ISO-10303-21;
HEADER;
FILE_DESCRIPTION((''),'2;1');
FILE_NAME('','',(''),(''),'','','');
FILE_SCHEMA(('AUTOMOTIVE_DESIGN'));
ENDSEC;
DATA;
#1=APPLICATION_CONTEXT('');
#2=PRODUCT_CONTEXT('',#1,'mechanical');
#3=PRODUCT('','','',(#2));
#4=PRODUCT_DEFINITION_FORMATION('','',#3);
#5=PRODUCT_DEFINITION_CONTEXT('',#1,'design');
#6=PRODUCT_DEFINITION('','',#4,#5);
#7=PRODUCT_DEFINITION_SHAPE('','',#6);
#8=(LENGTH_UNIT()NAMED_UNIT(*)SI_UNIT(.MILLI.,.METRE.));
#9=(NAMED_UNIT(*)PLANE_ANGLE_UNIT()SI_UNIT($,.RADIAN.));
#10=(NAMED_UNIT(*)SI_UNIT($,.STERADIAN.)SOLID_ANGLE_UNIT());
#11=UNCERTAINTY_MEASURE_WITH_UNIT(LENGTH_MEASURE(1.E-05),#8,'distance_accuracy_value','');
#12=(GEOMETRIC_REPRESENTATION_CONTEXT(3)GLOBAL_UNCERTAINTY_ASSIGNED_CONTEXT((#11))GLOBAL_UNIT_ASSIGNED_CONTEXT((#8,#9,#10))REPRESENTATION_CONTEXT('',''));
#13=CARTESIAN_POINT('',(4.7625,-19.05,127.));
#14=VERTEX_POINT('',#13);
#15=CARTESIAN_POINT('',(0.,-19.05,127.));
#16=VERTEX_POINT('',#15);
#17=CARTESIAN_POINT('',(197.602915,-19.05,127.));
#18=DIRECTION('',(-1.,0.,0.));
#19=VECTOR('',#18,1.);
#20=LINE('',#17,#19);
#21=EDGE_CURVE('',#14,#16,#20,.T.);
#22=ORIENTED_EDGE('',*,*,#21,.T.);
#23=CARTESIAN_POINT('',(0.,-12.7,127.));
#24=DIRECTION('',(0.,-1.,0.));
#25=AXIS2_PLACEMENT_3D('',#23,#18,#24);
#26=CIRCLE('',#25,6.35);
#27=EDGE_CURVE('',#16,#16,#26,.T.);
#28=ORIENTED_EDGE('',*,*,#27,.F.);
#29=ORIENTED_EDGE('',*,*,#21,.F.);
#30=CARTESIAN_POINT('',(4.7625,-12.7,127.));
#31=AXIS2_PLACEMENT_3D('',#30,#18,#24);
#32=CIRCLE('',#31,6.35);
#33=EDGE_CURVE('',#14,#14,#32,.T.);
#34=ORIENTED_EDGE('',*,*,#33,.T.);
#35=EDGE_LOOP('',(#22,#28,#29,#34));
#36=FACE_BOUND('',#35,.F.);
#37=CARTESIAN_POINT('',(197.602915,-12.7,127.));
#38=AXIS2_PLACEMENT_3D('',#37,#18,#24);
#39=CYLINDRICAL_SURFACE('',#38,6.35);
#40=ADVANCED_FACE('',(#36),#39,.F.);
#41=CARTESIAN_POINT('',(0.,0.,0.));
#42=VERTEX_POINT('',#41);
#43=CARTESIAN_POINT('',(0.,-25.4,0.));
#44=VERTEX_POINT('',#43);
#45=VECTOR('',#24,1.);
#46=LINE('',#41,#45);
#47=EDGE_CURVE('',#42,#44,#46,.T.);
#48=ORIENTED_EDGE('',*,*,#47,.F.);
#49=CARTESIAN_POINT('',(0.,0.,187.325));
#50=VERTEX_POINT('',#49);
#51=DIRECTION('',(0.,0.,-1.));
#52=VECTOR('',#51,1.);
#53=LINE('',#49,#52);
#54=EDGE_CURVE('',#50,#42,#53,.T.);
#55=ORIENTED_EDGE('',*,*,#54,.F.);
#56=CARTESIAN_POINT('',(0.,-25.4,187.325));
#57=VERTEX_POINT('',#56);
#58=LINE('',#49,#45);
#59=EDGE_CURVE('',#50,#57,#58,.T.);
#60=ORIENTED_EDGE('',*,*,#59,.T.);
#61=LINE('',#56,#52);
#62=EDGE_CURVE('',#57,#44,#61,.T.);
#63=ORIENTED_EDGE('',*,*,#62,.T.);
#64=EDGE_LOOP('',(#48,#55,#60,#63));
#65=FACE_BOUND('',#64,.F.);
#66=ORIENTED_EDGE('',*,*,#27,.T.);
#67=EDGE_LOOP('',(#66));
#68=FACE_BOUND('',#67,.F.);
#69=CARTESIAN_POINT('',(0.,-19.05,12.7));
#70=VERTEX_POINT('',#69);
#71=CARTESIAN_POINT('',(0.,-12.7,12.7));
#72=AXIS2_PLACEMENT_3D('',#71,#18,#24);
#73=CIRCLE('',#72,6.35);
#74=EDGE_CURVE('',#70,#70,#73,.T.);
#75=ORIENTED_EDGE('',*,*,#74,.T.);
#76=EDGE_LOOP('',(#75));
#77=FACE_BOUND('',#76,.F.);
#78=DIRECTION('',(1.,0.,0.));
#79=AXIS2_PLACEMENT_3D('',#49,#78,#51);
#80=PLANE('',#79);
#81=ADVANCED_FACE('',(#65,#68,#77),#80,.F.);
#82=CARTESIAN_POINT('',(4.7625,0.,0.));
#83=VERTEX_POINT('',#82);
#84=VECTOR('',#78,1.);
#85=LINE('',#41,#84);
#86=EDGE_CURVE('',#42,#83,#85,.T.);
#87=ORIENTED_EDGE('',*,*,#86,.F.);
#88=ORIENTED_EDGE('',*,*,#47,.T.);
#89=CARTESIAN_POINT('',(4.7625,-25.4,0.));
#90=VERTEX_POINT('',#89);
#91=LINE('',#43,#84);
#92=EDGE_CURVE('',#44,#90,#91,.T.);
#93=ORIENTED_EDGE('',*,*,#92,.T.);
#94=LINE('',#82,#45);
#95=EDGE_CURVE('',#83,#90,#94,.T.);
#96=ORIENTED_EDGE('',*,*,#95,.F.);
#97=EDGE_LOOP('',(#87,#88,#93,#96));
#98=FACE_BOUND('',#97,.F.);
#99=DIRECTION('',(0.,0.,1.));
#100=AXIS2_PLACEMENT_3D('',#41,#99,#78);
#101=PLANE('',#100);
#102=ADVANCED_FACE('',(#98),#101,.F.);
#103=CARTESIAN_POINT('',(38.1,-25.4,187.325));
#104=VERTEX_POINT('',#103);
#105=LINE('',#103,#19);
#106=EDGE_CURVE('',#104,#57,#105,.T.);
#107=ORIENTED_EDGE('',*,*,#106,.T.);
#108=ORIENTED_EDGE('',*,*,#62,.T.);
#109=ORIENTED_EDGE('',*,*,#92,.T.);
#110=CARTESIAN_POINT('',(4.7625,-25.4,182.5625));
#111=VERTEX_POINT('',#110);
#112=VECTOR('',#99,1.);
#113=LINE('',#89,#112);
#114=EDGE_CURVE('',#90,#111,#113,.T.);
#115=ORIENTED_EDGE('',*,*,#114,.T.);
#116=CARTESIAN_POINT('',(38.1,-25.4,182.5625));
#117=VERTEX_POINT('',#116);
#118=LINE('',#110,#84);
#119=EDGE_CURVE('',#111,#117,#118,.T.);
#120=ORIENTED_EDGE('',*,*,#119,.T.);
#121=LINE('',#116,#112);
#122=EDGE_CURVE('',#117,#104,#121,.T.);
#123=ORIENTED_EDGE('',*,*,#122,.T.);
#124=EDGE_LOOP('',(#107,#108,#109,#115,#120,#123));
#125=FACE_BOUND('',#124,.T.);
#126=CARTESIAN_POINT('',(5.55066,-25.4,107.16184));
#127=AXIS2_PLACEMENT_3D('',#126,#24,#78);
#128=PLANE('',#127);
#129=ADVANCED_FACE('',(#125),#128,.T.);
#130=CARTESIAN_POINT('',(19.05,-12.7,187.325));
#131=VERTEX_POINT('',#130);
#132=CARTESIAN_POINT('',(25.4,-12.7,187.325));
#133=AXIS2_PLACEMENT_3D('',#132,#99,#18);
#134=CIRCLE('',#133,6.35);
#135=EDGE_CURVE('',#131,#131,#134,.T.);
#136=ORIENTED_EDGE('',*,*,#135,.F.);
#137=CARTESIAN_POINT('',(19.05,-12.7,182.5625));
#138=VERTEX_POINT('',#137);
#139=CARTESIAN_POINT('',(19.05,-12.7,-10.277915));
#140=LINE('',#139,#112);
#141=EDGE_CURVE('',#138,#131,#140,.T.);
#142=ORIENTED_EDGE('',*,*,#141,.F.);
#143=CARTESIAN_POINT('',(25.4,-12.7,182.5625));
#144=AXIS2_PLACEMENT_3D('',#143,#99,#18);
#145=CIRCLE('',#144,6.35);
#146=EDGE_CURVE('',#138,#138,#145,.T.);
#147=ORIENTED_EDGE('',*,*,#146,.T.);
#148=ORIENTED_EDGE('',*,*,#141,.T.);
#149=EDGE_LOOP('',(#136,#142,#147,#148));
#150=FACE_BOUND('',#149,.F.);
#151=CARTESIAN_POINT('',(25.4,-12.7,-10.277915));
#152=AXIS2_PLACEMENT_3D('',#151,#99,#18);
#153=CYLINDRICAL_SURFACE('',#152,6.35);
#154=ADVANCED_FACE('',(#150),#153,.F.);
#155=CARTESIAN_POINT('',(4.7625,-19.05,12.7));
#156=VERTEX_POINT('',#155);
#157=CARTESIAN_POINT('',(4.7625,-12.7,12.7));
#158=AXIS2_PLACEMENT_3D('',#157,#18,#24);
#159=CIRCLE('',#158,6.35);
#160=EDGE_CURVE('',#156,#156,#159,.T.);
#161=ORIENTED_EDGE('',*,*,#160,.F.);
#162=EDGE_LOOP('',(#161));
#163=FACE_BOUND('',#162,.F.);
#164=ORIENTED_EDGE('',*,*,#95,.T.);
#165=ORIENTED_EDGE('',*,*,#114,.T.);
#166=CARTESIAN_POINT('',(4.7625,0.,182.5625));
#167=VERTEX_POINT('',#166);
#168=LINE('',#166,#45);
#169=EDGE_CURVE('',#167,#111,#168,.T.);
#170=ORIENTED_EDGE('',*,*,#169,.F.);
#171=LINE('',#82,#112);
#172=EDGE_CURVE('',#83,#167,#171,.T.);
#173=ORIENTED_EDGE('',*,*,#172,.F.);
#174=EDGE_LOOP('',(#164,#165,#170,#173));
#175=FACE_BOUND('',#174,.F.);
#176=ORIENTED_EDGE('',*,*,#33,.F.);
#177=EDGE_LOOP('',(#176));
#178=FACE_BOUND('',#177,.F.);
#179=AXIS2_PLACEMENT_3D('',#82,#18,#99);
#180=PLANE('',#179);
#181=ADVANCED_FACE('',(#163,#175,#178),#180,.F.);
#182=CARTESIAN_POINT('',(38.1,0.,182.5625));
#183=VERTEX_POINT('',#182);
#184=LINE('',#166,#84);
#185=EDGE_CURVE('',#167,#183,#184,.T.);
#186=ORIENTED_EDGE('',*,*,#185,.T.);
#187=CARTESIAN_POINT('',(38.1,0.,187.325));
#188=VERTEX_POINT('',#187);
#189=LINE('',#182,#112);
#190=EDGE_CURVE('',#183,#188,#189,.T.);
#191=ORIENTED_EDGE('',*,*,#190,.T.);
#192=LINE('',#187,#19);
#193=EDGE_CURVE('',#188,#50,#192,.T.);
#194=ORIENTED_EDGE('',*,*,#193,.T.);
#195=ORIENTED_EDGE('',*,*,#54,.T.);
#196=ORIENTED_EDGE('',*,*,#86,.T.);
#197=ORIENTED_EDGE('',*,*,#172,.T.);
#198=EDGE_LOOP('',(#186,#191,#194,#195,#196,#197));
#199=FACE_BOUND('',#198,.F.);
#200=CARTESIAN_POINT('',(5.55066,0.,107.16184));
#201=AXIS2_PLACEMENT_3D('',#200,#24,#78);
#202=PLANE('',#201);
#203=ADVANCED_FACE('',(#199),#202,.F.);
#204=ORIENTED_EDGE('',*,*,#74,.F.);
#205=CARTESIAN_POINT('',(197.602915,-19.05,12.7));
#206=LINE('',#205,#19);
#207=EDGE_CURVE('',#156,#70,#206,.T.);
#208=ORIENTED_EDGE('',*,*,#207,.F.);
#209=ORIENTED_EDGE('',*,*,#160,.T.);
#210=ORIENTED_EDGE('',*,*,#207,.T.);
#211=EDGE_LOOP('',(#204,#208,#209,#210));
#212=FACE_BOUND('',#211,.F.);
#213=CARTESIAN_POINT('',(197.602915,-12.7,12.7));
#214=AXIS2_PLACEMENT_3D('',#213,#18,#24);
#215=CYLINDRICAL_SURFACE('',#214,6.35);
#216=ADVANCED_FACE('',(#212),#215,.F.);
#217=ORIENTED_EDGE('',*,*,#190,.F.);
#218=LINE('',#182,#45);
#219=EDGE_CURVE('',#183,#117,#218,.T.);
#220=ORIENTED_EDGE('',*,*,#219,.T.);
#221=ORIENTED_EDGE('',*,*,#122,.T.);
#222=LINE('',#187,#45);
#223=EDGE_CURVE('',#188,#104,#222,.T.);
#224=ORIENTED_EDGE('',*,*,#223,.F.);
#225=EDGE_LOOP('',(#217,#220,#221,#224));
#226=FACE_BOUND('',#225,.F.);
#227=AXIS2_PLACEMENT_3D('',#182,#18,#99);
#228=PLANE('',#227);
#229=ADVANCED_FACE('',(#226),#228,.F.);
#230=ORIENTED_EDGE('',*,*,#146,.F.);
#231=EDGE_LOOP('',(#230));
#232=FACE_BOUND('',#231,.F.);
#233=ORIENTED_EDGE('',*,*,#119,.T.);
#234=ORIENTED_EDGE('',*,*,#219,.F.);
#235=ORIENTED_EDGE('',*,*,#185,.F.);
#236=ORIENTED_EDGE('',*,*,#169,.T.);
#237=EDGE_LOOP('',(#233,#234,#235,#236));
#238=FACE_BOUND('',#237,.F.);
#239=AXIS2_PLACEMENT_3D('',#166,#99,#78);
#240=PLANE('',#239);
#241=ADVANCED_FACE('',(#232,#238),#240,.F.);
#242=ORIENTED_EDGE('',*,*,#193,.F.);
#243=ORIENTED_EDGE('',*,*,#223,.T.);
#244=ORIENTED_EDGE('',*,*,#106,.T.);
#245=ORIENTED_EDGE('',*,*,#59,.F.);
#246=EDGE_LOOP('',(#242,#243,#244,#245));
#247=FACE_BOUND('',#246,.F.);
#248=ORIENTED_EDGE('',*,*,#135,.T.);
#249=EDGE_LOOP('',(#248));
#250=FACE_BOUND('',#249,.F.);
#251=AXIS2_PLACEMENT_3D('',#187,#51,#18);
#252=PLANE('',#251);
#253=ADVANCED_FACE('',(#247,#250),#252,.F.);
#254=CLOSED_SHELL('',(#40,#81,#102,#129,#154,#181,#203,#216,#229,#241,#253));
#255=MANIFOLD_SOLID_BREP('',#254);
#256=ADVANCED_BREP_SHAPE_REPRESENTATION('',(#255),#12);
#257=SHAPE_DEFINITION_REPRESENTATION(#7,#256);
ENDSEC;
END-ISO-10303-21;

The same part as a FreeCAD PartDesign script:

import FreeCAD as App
import Part
import Sketcher
from FreeCAD import Vector
Q = App.Units.Quantity


def add_polygon(sketch, points):
    """Adds a closed chain of lines whose ends are joined by coincident constraints."""
    first, n = sketch.GeometryCount, len(points)
    for a, b in zip(points, points[1:] + points[:1]):
        sketch.addGeometry(Part.LineSegment(App.Vector(*a, 0), App.Vector(*b, 0)), False)
    for i in range(n):
        sketch.addConstraint(Sketcher.Constraint("Coincident", first + i, 2, first + (i + 1) % n, 1))

doc = App.newDocument("Part")
body = doc.addObject("PartDesign::Body", "Body")

# Sketch on XZ plane
sketch1 = doc.addObject("Sketcher::SketchObject", "Sketch")
body.addObject(sketch1)
sketch1.AttachmentSupport = (doc.XZ_Plane, [""])
sketch1.MapMode = "FlatFace"
add_polygon(sketch1, [(0, 187.3), (0, 0), (4.8, 0), (4.8, 182.6), (38.1, 182.6), (38.1, 187.3)])  # lines 0-5
sketch1.addConstraint([
    Sketcher.Constraint("Vertical", 0),
    Sketcher.Constraint("Horizontal", 1),
    Sketcher.Constraint("Vertical", 2),
    Sketcher.Constraint("Horizontal", 3),
    Sketcher.Constraint("Vertical", 4),
    Sketcher.Constraint("Horizontal", 5),
    Sketcher.Constraint("Coincident", 0, 2, -1, 1),
    Sketcher.Constraint("Equal", 1, 4),
    Sketcher.Constraint("DistanceX", 5, 2, 5, 1, Q("1.5 in")),
    Sketcher.Constraint("DistanceX", 1, 1, 1, 2, Q("0.1875 in")),
    Sketcher.Constraint("DistanceY", 0, 2, 0, 1, Q("7.375 in")),
])
pad1 = doc.addObject("PartDesign::Pad", "Pad")
body.addObject(pad1)
pad1.Profile = sketch1
pad1.Length = Q("1 in")

# Sketch on YZ plane
sketch2 = doc.addObject("Sketcher::SketchObject", "Sketch001")
body.addObject(sketch2)
sketch2.AttachmentSupport = (doc.YZ_Plane, [""])
sketch2.MapMode = "FlatFace"
sketch2.AttachmentOffset = App.Placement(Vector(0, 0, 0.1875 * 25.4), App.Rotation())
sketch2.addGeometry([
    Part.Circle(Vector(-13, 127, 0), Vector(0, 0, 1), 6),
    Part.Circle(Vector(-13, 13, 0), Vector(0, 0, 1), 6),
], False)
sketch2.addConstraint([
    Sketcher.Constraint("Equal", 0, 1),
    Sketcher.Constraint("Vertical", 0, 3, 1, 3),
    Sketcher.Constraint("Diameter", 0, Q("0.5 in")),
    Sketcher.Constraint("DistanceY", -1, 1, 0, 3, Q("5 in")),
    Sketcher.Constraint("DistanceX", 0, 3, -1, 1, Q("0.5 in")),
    Sketcher.Constraint("DistanceY", -1, 1, 1, 3, Q("0.5 in")),
])
doc.recompute()
hole = doc.addObject("PartDesign::Hole", "Hole")
body.addObject(hole)
hole.Profile = sketch2
hole.ThreadType = "None"
hole.Diameter = Q("0.5 in")
hole.DepthType = "ThroughAll"

# Sketch on XY plane
sketch3 = doc.addObject("Sketcher::SketchObject", "Sketch002")
body.addObject(sketch3)
sketch3.AttachmentSupport = (doc.XY_Plane, [""])
sketch3.MapMode = "FlatFace"
sketch3.AttachmentOffset = App.Placement(Vector(0, 0, 7.1875 * 25.4), App.Rotation())
sketch3.addGeometry(Part.Circle(Vector(25, -13, 0), Vector(0, 0, 1), 6), False)
sketch3.addConstraint([
    Sketcher.Constraint("Diameter", 0, Q("0.5 in")),
    Sketcher.Constraint("DistanceX", -1, 1, 0, 3, Q("1 in")),
    Sketcher.Constraint("DistanceY", 0, 3, -1, 1, Q("0.5 in")),
])
doc.recompute()
hole2 = doc.addObject("PartDesign::Hole", "Hole001")
body.addObject(hole2)
hole2.Profile = sketch3
hole2.ThreadType = "None"
hole2.Diameter = Q("0.5 in")
hole2.DepthType = "ThroughAll"
hole2.Reversed = True

doc.recompute()
